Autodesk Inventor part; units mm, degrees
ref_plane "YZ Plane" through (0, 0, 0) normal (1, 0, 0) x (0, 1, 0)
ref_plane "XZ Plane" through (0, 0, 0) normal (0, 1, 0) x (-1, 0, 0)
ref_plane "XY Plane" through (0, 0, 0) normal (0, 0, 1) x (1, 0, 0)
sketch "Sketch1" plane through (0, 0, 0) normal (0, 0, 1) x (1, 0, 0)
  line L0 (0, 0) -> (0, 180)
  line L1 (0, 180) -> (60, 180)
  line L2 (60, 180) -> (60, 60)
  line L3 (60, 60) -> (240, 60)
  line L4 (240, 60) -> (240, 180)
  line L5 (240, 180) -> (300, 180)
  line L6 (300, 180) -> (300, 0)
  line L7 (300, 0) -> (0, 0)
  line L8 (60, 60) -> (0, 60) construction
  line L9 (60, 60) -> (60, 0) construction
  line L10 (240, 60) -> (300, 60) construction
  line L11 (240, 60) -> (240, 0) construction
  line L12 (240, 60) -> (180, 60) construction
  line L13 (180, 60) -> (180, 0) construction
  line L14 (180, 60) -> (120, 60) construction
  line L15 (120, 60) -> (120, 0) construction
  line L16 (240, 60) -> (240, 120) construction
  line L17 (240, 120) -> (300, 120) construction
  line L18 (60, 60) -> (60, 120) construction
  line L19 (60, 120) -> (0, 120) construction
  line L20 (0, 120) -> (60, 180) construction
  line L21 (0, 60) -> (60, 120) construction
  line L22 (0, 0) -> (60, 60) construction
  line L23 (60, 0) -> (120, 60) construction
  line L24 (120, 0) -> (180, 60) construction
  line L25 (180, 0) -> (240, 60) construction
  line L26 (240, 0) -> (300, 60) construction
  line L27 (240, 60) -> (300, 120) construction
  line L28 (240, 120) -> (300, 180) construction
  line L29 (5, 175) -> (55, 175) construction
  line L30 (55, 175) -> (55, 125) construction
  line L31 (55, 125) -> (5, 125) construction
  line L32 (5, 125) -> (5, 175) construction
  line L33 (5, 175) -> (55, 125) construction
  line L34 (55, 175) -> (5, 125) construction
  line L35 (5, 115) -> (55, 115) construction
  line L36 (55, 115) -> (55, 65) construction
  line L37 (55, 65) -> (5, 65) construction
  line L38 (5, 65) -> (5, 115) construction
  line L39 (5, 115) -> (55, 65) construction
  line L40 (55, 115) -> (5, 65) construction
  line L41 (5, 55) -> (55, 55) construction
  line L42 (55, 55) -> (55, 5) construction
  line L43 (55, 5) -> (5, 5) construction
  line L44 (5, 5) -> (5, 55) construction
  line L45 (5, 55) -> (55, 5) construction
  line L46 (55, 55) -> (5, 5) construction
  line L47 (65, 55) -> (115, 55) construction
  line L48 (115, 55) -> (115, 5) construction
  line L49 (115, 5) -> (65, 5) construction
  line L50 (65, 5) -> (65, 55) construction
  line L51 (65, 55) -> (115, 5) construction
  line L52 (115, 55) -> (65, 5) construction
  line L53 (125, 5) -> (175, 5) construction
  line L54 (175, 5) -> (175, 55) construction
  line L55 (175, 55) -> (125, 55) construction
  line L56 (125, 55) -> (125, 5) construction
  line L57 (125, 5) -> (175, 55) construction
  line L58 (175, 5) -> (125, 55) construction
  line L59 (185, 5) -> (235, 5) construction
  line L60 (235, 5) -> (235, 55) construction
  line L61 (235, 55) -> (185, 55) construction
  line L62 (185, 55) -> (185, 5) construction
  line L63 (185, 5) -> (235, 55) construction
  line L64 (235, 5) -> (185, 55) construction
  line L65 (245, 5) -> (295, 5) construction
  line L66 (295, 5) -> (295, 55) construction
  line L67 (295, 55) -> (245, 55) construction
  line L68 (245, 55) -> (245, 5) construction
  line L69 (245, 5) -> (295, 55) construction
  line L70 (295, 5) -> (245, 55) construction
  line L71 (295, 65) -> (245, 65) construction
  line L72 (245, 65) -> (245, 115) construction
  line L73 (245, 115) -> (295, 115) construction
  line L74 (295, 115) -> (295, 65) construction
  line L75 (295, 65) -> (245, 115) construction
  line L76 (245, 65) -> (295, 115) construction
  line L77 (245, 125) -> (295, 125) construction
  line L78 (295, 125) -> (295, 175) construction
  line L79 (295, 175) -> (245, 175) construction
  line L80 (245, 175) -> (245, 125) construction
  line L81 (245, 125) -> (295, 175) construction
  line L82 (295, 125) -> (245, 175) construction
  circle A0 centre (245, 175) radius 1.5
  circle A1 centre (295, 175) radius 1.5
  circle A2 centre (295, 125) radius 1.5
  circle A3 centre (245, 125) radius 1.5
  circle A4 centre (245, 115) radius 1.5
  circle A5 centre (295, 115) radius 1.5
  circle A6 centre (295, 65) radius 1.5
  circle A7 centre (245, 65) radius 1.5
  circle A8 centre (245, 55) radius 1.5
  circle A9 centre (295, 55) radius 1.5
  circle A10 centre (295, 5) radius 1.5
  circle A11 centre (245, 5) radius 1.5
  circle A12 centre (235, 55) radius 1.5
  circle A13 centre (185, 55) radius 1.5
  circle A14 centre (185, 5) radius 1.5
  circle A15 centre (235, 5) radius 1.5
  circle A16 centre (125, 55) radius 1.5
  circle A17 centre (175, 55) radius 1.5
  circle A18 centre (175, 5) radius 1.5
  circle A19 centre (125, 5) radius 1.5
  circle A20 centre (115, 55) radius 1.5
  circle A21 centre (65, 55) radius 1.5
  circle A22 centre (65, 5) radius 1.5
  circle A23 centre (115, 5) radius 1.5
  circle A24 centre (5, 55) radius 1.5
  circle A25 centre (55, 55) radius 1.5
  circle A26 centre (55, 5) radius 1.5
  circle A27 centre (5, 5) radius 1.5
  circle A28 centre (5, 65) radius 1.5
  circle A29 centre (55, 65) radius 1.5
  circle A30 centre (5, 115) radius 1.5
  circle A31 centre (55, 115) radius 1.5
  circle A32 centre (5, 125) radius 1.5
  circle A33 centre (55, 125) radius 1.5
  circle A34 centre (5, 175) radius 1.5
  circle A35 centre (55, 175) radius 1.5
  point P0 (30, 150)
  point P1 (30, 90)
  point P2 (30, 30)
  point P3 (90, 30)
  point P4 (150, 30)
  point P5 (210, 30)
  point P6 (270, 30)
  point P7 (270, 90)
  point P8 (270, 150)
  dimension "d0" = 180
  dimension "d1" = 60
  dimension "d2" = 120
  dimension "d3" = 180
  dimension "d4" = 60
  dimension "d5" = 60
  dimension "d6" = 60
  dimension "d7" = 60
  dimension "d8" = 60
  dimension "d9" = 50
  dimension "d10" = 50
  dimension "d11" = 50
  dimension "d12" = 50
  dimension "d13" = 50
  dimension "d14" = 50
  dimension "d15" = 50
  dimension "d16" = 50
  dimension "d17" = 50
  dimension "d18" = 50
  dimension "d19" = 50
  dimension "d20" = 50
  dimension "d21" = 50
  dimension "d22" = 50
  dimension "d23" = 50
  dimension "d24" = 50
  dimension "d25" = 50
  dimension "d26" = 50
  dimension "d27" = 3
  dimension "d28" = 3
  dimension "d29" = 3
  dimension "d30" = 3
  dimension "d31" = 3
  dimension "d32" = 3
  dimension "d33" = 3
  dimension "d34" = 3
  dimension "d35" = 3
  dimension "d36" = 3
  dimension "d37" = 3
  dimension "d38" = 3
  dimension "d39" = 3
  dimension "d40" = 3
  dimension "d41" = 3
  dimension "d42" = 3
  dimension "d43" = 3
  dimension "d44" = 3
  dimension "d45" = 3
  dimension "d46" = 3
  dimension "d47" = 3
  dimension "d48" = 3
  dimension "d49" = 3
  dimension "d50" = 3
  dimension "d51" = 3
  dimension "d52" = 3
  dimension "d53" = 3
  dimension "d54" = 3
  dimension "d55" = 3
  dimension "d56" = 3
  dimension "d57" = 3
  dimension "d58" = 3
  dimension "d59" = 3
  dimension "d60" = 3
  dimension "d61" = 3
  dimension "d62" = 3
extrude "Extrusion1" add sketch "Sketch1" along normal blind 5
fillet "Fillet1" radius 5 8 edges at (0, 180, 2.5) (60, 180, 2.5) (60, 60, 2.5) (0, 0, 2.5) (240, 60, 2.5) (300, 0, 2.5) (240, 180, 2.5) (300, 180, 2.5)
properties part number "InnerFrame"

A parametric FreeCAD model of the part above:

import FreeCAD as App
import Part
import Sketcher

V = App.Vector
Q = App.Units.Quantity


def edges_at(feature, points):
    """Names of the edges that pass closest to the given points."""
    edges = feature.Shape.Edges
    near = lambda p: min(range(len(edges)), key=lambda i: edges[i].distToShape(Part.Vertex(*p))[0])
    return sorted({f"Edge{near(p) + 1}" for p in points})

doc = App.newDocument("Part")
body = doc.addObject("PartDesign::Body", "Body")

# Sketch on XY plane
sketch1 = body.newObject("Sketcher::SketchObject", "Sketch")
sketch1.AttachmentSupport = (doc.getObject("XY_Plane"), [""])
sketch1.MapMode = "FlatFace"
sketch1.addGeometry([
    Part.LineSegment(V(0, 180, 0), V(0, 0, 0)),  # 0
    Part.LineSegment(V(0, 0, 0), V(300, 0, 0)),  # 1
    Part.LineSegment(V(300, 0, 0), V(300, 180, 0)),  # 2
    Part.LineSegment(V(300, 180, 0), V(240, 180, 0)),  # 3
    Part.LineSegment(V(240, 180, 0), V(240, 60, 0)),  # 4
    Part.LineSegment(V(240, 60, 0), V(60, 60, 0)),  # 5
    Part.LineSegment(V(60, 60, 0), V(60, 180, 0)),  # 6
    Part.LineSegment(V(60, 180, 0), V(0, 180, 0)),  # 7
    Part.Circle(V(5, 5, 0), V(0, 0, 1), 1.5),  # 8
    Part.Circle(V(55, 5, 0), V(0, 0, 1), 1.5),  # 9
    Part.Circle(V(65, 5, 0), V(0, 0, 1), 1.5),  # 10
    Part.Circle(V(115, 5, 0), V(0, 0, 1), 1.5),  # 11
    Part.Circle(V(125, 5, 0), V(0, 0, 1), 1.5),  # 12
    Part.Circle(V(5, 55, 0), V(0, 0, 1), 1.5),  # 13
    Part.Circle(V(5, 65, 0), V(0, 0, 1), 1.5),  # 14
    Part.Circle(V(55, 55, 0), V(0, 0, 1), 1.5),  # 15
    Part.Circle(V(65, 55, 0), V(0, 0, 1), 1.5),  # 16
    Part.Circle(V(55, 65, 0), V(0, 0, 1), 1.5),  # 17
    Part.Circle(V(115, 55, 0), V(0, 0, 1), 1.5),  # 18
    Part.Circle(V(125, 55, 0), V(0, 0, 1), 1.5),  # 19
    Part.Circle(V(175, 5, 0), V(0, 0, 1), 1.5),  # 20
    Part.Circle(V(185, 5, 0), V(0, 0, 1), 1.5),  # 21
    Part.Circle(V(235, 5, 0), V(0, 0, 1), 1.5),  # 22
    Part.Circle(V(245, 5, 0), V(0, 0, 1), 1.5),  # 23
    Part.Circle(V(295, 5, 0), V(0, 0, 1), 1.5),  # 24
    Part.Circle(V(175, 55, 0), V(0, 0, 1), 1.5),  # 25
    Part.Circle(V(185, 55, 0), V(0, 0, 1), 1.5),  # 26
    Part.Circle(V(235, 55, 0), V(0, 0, 1), 1.5),  # 27
    Part.Circle(V(245, 55, 0), V(0, 0, 1), 1.5),  # 28
    Part.Circle(V(245, 65, 0), V(0, 0, 1), 1.5),  # 29
    Part.Circle(V(295, 55, 0), V(0, 0, 1), 1.5),  # 30
    Part.Circle(V(295, 65, 0), V(0, 0, 1), 1.5),  # 31
    Part.Circle(V(5, 115, 0), V(0, 0, 1), 1.5),  # 32
    Part.Circle(V(5, 125, 0), V(0, 0, 1), 1.5),  # 33
    Part.Circle(V(55, 115, 0), V(0, 0, 1), 1.5),  # 34
    Part.Circle(V(55, 125, 0), V(0, 0, 1), 1.5),  # 35
    Part.Circle(V(5, 175, 0), V(0, 0, 1), 1.5),  # 36
    Part.Circle(V(55, 175, 0), V(0, 0, 1), 1.5),  # 37
    Part.Circle(V(245, 115, 0), V(0, 0, 1), 1.5),  # 38
    Part.Circle(V(245, 125, 0), V(0, 0, 1), 1.5),  # 39
    Part.Circle(V(295, 115, 0), V(0, 0, 1), 1.5),  # 40
    Part.Circle(V(295, 125, 0), V(0, 0, 1), 1.5),  # 41
    Part.Circle(V(245, 175, 0), V(0, 0, 1), 1.5),  # 42
    Part.Circle(V(295, 175, 0), V(0, 0, 1), 1.5),  # 43
], False)
sketch1.addConstraint([
    Sketcher.Constraint("Coincident", 0, 2, 1, 1),
    Sketcher.Constraint("Coincident", 1, 2, 2, 1),
    Sketcher.Constraint("Coincident", 2, 2, 3, 1),
    Sketcher.Constraint("Coincident", 3, 2, 4, 1),
    Sketcher.Constraint("Coincident", 4, 2, 5, 1),
    Sketcher.Constraint("Coincident", 5, 2, 6, 1),
    Sketcher.Constraint("Coincident", 6, 2, 7, 1),
    Sketcher.Constraint("Coincident", 7, 2, 0, 1),
    Sketcher.Constraint("Vertical", 0),
    Sketcher.Constraint("Horizontal", 1),
    Sketcher.Constraint("Vertical", 2),
    Sketcher.Constraint("Horizontal", 3),
    Sketcher.Constraint("Vertical", 4),
    Sketcher.Constraint("Horizontal", 5),
    Sketcher.Constraint("Vertical", 6),
    Sketcher.Constraint("Horizontal", 7),
    Sketcher.Constraint("Coincident", 0, 2, -1, 1),
    Sketcher.Constraint("Equal", 8, 9),
    Sketcher.Constraint("Equal", 9, 10),
    Sketcher.Constraint("Equal", 10, 11),
    Sketcher.Constraint("Equal", 11, 12),
    Sketcher.Constraint("Equal", 12, 13),
    Sketcher.Constraint("Equal", 13, 14),
    Sketcher.Constraint("Equal", 14, 15),
    Sketcher.Constraint("Equal", 15, 16),
    Sketcher.Constraint("Equal", 16, 17),
    Sketcher.Constraint("Equal", 17, 18),
    Sketcher.Constraint("Equal", 18, 19),
    Sketcher.Constraint("Equal", 19, 20),
    Sketcher.Constraint("Equal", 20, 21),
    Sketcher.Constraint("Equal", 21, 22),
    Sketcher.Constraint("Equal", 22, 23),
    Sketcher.Constraint("Equal", 23, 24),
    Sketcher.Constraint("Equal", 24, 25),
    Sketcher.Constraint("Equal", 25, 26),
    Sketcher.Constraint("Equal", 26, 27),
    Sketcher.Constraint("Equal", 27, 28),
    Sketcher.Constraint("Equal", 28, 29),
    Sketcher.Constraint("Equal", 29, 30),
    Sketcher.Constraint("Equal", 30, 31),
    Sketcher.Constraint("Equal", 31, 32),
    Sketcher.Constraint("Equal", 32, 33),
    Sketcher.Constraint("Equal", 33, 34),
    Sketcher.Constraint("Equal", 34, 35),
    Sketcher.Constraint("Equal", 35, 36),
    Sketcher.Constraint("Equal", 36, 37),
    Sketcher.Constraint("Equal", 37, 38),
    Sketcher.Constraint("Equal", 38, 39),
    Sketcher.Constraint("Equal", 39, 40),
    Sketcher.Constraint("Equal", 40, 41),
    Sketcher.Constraint("Equal", 41, 42),
    Sketcher.Constraint("Equal", 42, 43),
    Sketcher.Constraint("Horizontal", 8, 3, 9, 3),
    Sketcher.Constraint("Horizontal", 9, 3, 10, 3),
    Sketcher.Constraint("Horizontal", 10, 3, 11, 3),
    Sketcher.Constraint("Horizontal", 11, 3, 12, 3),
    Sketcher.Constraint("Horizontal", 13, 3, 15, 3),
    Sketcher.Constraint("Horizontal", 15, 3, 16, 3),
    Sketcher.Constraint("Horizontal", 14, 3, 17, 3),
    Sketcher.Constraint("Horizontal", 16, 3, 18, 3),
    Sketcher.Constraint("Horizontal", 18, 3, 19, 3),
    Sketcher.Constraint("Horizontal", 12, 3, 20, 3),
    Sketcher.Constraint("Horizontal", 20, 3, 21, 3),
    Sketcher.Constraint("Horizontal", 21, 3, 22, 3),
    Sketcher.Constraint("Horizontal", 22, 3, 23, 3),
    Sketcher.Constraint("Horizontal", 23, 3, 24, 3),
    Sketcher.Constraint("Horizontal", 19, 3, 25, 3),
    Sketcher.Constraint("Horizontal", 25, 3, 26, 3),
    Sketcher.Constraint("Horizontal", 26, 3, 27, 3),
    Sketcher.Constraint("Horizontal", 27, 3, 28, 3),
    Sketcher.Constraint("Horizontal", 17, 3, 29, 3),
    Sketcher.Constraint("Horizontal", 28, 3, 30, 3),
    Sketcher.Constraint("Horizontal", 29, 3, 31, 3),
    Sketcher.Constraint("Horizontal", 32, 3, 34, 3),
    Sketcher.Constraint("Horizontal", 33, 3, 35, 3),
    Sketcher.Constraint("Horizontal", 36, 3, 37, 3),
    Sketcher.Constraint("Horizontal", 34, 3, 38, 3),
    Sketcher.Constraint("Horizontal", 35, 3, 39, 3),
    Sketcher.Constraint("Horizontal", 38, 3, 40, 3),
    Sketcher.Constraint("Horizontal", 39, 3, 41, 3),
    Sketcher.Constraint("Horizontal", 37, 3, 42, 3),
    Sketcher.Constraint("Horizontal", 42, 3, 43, 3),
    Sketcher.Constraint("Horizontal", 3, 2, 6, 2),
    Sketcher.Constraint("Vertical", 8, 3, 13, 3),
    Sketcher.Constraint("Vertical", 13, 3, 14, 3),
    Sketcher.Constraint("Vertical", 9, 3, 15, 3),
    Sketcher.Constraint("Vertical", 10, 3, 16, 3),
    Sketcher.Constraint("Vertical", 15, 3, 17, 3),
    Sketcher.Constraint("Vertical", 11, 3, 18, 3),
    Sketcher.Constraint("Vertical", 12, 3, 19, 3),
    Sketcher.Constraint("Vertical", 20, 3, 25, 3),
    Sketcher.Constraint("Vertical", 21, 3, 26, 3),
    Sketcher.Constraint("Vertical", 22, 3, 27, 3),
    Sketcher.Constraint("Vertical", 23, 3, 28, 3),
    Sketcher.Constraint("Vertical", 28, 3, 29, 3),
    Sketcher.Constraint("Vertical", 24, 3, 30, 3),
    Sketcher.Constraint("Vertical", 30, 3, 31, 3),
    Sketcher.Constraint("Vertical", 14, 3, 32, 3),
    Sketcher.Constraint("Vertical", 32, 3, 33, 3),
    Sketcher.Constraint("Vertical", 17, 3, 34, 3),
    Sketcher.Constraint("Vertical", 34, 3, 35, 3),
    Sketcher.Constraint("Vertical", 33, 3, 36, 3),
    Sketcher.Constraint("Vertical", 35, 3, 37, 3),
    Sketcher.Constraint("Vertical", 29, 3, 38, 3),
    Sketcher.Constraint("Vertical", 38, 3, 39, 3),
    Sketcher.Constraint("Vertical", 31, 3, 40, 3),
    Sketcher.Constraint("Vertical", 40, 3, 41, 3),
    Sketcher.Constraint("Vertical", 39, 3, 42, 3),
    Sketcher.Constraint("Vertical", 41, 3, 43, 3),
    Sketcher.Constraint("Equal", 3, 7),
    Sketcher.Constraint("Equal", 5, 0),
    Sketcher.Constraint("Diameter", 8, Q("3 mm")),
    Sketcher.Constraint("DistanceX", 3, 2, 3, 1, Q("60 mm")),
    Sketcher.Constraint("DistanceX", 5, 2, 5, 1, Q("180 mm")),
    Sketcher.Constraint("DistanceY", 4, 2, 4, 1, Q("120 mm")),
    Sketcher.Constraint("DistanceX", 8, 3, 9, 3, Q("50 mm")),
    Sketcher.Constraint("DistanceX", 8, 3, 10, 3, Q("60 mm")),
    Sketcher.Constraint("DistanceX", 10, 3, 11, 3, Q("50 mm")),
    Sketcher.Constraint("DistanceX", 10, 3, 12, 3, Q("60 mm")),
    Sketcher.Constraint("DistanceY", 8, 3, 13, 3, Q("50 mm")),
    Sketcher.Constraint("DistanceY", 8, 3, 14, 3, Q("60 mm")),
    Sketcher.Constraint("DistanceX", 12, 3, 20, 3, Q("50 mm")),
    Sketcher.Constraint("DistanceX", 12, 3, 21, 3, Q("60 mm")),
    Sketcher.Constraint("DistanceX", 21, 3, 22, 3, Q("50 mm")),
    Sketcher.Constraint("DistanceX", 21, 3, 23, 3, Q("60 mm")),
    Sketcher.Constraint("DistanceX", 23, 3, 24, 3, Q("50 mm")),
    Sketcher.Constraint("DistanceY", 14, 3, 32, 3, Q("50 mm")),
    Sketcher.Constraint("DistanceY", 14, 3, 33, 3, Q("60 mm")),
    Sketcher.Constraint("DistanceY", 33, 3, 36, 3, Q("50 mm")),
    Sketcher.Constraint("DistanceX", -1, 1, 8, 3, Q("5 mm")),
    Sketcher.Constraint("DistanceY", -1, 1, 8, 3, Q("5 mm")),
])
pad1 = body.newObject("PartDesign::Pad", "Pad")
pad1.Profile = sketch1
pad1.Length = 5
doc.recompute()

fillet = body.newObject("PartDesign::Fillet", "Fillet")
fillet.Base = (pad1, edges_at(pad1, [
    (0, 180, 2.5),
    (60, 180, 2.5),
    (60, 60, 2.5),
    (0, 0, 2.5),
    (240, 60, 2.5),
    (300, 0, 2.5),
    (240, 180, 2.5),
    (300, 180, 2.5),
]))
fillet.Radius = 5

doc.recompute()
